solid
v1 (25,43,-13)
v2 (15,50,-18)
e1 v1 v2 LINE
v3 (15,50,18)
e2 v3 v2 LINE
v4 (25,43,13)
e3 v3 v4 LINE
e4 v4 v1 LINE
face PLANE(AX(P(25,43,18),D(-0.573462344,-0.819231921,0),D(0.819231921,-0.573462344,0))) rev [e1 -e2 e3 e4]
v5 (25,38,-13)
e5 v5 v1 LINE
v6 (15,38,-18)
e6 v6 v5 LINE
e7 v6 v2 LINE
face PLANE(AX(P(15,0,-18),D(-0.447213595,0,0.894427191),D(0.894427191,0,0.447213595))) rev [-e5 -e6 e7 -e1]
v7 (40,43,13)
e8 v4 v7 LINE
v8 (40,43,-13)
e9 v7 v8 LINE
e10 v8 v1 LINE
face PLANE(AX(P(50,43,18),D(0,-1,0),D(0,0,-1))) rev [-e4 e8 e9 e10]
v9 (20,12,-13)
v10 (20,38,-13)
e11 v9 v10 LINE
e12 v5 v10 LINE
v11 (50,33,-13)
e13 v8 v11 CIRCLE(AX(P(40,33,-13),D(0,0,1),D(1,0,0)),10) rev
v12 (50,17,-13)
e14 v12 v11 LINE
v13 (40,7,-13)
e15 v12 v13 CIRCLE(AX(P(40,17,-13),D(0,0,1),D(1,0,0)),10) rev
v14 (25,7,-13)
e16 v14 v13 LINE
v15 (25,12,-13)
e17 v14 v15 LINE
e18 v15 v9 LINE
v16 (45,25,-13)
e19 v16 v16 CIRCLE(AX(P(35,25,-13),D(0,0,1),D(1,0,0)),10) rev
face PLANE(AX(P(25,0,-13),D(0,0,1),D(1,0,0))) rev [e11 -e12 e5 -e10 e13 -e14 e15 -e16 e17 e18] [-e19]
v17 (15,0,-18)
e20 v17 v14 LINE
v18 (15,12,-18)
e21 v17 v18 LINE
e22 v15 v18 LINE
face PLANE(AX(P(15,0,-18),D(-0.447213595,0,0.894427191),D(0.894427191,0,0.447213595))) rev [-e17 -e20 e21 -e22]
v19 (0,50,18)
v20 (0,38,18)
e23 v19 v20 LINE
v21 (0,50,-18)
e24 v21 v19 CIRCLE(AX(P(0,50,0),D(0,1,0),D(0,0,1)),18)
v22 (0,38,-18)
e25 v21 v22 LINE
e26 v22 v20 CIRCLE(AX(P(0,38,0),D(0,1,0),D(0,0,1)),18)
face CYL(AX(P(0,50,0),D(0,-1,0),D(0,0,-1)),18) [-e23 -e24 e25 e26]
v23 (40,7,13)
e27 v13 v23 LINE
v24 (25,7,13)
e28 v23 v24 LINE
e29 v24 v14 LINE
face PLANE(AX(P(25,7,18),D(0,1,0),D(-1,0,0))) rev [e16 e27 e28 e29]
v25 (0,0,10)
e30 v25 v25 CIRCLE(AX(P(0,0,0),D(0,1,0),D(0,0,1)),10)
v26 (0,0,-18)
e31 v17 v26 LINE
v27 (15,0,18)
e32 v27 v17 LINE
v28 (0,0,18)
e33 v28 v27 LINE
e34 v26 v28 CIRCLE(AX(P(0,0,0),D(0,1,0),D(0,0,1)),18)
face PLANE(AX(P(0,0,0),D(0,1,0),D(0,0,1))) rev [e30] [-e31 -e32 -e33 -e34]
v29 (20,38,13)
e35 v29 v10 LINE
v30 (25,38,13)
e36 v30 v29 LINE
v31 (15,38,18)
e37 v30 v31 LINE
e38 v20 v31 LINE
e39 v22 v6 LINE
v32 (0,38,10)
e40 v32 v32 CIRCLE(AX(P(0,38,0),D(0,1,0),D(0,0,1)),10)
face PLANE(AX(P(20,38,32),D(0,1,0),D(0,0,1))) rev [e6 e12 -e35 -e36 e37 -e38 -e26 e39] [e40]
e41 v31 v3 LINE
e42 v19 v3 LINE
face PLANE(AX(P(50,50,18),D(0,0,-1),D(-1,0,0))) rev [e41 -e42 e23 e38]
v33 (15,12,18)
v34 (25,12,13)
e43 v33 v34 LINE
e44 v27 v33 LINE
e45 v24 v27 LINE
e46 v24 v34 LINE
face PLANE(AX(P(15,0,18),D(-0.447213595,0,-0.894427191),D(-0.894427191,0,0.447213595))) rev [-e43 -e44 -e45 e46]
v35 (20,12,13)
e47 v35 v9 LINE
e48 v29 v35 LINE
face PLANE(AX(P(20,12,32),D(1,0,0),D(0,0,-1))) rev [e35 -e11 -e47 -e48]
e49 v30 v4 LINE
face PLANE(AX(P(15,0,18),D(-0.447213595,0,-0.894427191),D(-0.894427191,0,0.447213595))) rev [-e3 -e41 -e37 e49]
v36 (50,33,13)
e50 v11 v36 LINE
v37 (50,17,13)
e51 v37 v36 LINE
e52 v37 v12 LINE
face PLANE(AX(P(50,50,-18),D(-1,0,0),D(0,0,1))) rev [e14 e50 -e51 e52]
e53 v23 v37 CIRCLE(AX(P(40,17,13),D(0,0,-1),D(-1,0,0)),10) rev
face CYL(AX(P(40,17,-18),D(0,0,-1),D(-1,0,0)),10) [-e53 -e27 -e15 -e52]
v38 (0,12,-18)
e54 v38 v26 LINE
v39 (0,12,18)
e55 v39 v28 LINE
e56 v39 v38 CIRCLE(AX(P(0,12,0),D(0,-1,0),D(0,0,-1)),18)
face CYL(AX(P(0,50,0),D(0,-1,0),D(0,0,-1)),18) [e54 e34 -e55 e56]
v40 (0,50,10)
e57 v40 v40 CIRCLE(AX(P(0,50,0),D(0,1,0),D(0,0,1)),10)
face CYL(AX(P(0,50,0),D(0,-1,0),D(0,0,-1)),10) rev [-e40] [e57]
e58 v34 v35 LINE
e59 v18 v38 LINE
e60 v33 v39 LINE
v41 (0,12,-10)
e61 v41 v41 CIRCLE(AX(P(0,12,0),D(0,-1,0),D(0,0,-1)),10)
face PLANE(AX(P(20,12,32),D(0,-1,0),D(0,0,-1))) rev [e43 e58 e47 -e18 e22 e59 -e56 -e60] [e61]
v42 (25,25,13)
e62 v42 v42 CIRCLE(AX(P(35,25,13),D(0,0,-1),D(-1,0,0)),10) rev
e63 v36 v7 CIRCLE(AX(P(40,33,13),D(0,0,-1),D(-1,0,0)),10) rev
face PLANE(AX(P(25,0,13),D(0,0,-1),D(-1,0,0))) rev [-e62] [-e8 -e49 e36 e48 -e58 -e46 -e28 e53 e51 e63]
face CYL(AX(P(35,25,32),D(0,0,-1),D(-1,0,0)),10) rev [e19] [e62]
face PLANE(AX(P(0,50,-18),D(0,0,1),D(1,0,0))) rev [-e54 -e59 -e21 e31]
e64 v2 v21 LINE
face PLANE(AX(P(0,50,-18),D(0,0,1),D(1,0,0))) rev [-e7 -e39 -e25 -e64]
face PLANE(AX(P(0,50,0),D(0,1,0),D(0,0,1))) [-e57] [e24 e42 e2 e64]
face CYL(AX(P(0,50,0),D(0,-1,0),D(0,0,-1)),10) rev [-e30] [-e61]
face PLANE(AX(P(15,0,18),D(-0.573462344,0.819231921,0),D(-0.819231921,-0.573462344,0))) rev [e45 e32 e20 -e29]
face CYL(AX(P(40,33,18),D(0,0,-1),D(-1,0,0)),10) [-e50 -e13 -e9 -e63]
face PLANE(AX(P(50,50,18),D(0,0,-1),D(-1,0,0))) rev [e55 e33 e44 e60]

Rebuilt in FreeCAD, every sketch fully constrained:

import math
import FreeCAD as App
import Part
import Sketcher

V = App.Vector
Q = App.Units.Quantity


def edges_at(feature, points):
    """Names of the edges that pass closest to the given points."""
    edges = feature.Shape.Edges
    near = lambda p: min(range(len(edges)), key=lambda i: edges[i].distToShape(Part.Vertex(*p))[0])
    return sorted({f"Edge{near(p) + 1}" for p in points})

doc = App.newDocument("Part")
body = doc.addObject("PartDesign::Body", "Body")

# Sketch on XZ plane
sketch1 = body.newObject("Sketcher::SketchObject", "Sketch")
sketch1.AttachmentSupport = (doc.getObject("XZ_Plane"), [""])
sketch1.MapMode = "FlatFace"
sketch1.addGeometry(Part.LineSegment(V(50, -18, 0), V(0, -18, 0)), False)
sketch1.addGeometry(Part.ArcOfCircle(Part.Circle(V(0, 0, 0), V(0, 0, 1), 18), math.radians(90), math.radians(270)), False)
sketch1.addGeometry(Part.LineSegment(V(0, 18, 0), V(50, 18, 0)), False)
sketch1.addGeometry(Part.LineSegment(V(50, 18, 0), V(50, -18, 0)), False)
sketch1.addGeometry(Part.Circle(V(0, 0, 0), V(0, 0, 1), 10), False)
sketch1.addConstraint(Sketcher.Constraint("Tangent", 0, 2, 1, 2))
sketch1.addConstraint(Sketcher.Constraint("Tangent", 1, 1, 2, 1))
sketch1.addConstraint(Sketcher.Constraint("Coincident", 2, 2, 3, 1))
sketch1.addConstraint(Sketcher.Constraint("Coincident", 3, 2, 0, 1))
sketch1.addConstraint(Sketcher.Constraint("Horizontal", 0))
sketch1.addConstraint(Sketcher.Constraint("Horizontal", 2))
sketch1.addConstraint(Sketcher.Constraint("Vertical", 3))
sketch1.addConstraint(Sketcher.Constraint("Coincident", 1, 3, -1, 1))
sketch1.addConstraint(Sketcher.Constraint("Coincident", 4, 3, -1, 1))
sketch1.addConstraint(Sketcher.Constraint("Diameter", 4, Q("20 mm")))
sketch1.addConstraint(Sketcher.Constraint("Radius", 1, Q("18 mm")))
sketch1.addConstraint(Sketcher.Constraint("DistanceX", 0, 2, 0, 1, Q("50 mm")))
pad1 = body.newObject("PartDesign::Pad", "Pad")
pad1.Profile = sketch1
pad1.Length = 50
pad1.Reversed = True

# Sketch on XY plane
sketch2 = body.newObject("Sketcher::SketchObject", "Sketch001")
sketch2.AttachmentSupport = (doc.getObject("XY_Plane"), [""])
sketch2.MapMode = "FlatFace"
sketch2.AttachmentOffset = App.Placement(V(0, 0, -18), App.Rotation())
sketch2.addGeometry(Part.LineSegment(V(20, 38, 0), V(20, 12, 0)), False)
sketch2.addGeometry(Part.LineSegment(V(20, 12, 0), V(-24, 12, 0)), False)
sketch2.addGeometry(Part.LineSegment(V(-24, 12, 0), V(-24, 38, 0)), False)
sketch2.addGeometry(Part.LineSegment(V(-24, 38, 0), V(20, 38, 0)), False)
sketch2.addConstraint(Sketcher.Constraint("Coincident", 0, 2, 1, 1))
sketch2.addConstraint(Sketcher.Constraint("Coincident", 1, 2, 2, 1))
sketch2.addConstraint(Sketcher.Constraint("Coincident", 2, 2, 3, 1))
sketch2.addConstraint(Sketcher.Constraint("Coincident", 3, 2, 0, 1))
sketch2.addConstraint(Sketcher.Constraint("Vertical", 0))
sketch2.addConstraint(Sketcher.Constraint("Horizontal", 1))
sketch2.addConstraint(Sketcher.Constraint("Vertical", 2))
sketch2.addConstraint(Sketcher.Constraint("Horizontal", 3))
sketch2.addConstraint(Sketcher.Constraint("DistanceY", 0, 2, 0, 1, Q("26 mm")))
sketch2.addConstraint(Sketcher.Constraint("DistanceX", -1, 1, 0, 2, Q("20 mm")))
sketch2.addConstraint(Sketcher.Constraint("DistanceY", -1, 1, 0, 2, Q("12 mm")))
sketch2.addConstraint(Sketcher.Constraint("DistanceX", 1, 2, 1, 1, Q("44.116747 mm")))
pocket1 = body.newObject("PartDesign::Pocket", "Pocket")
pocket1.Profile = sketch2
pocket1.Length = 50
pocket1.Reversed = True

# Sketch on XY plane
sketch3 = body.newObject("Sketcher::SketchObject", "Sketch002")
sketch3.AttachmentSupport = (doc.getObject("XY_Plane"), [""])
sketch3.MapMode = "FlatFace"
sketch3.AttachmentOffset = App.Placement(V(0, 0, -18), App.Rotation())
sketch3.addGeometry(Part.Circle(V(35, 25, 0), V(0, 0, 1), 10), False)
sketch3.addConstraint(Sketcher.Constraint("Diameter", 0, Q("20 mm")))
sketch3.addConstraint(Sketcher.Constraint("DistanceX", -1, 1, 0, 3, Q("35 mm")))
sketch3.addConstraint(Sketcher.Constraint("DistanceY", -1, 1, 0, 3, Q("25 mm")))
pocket2 = body.newObject("PartDesign::Pocket", "Pocket001")
pocket2.Profile = sketch3
pocket2.Length = 50
pocket2.Reversed = True

# Sketch on XY plane
sketch4 = body.newObject("Sketcher::SketchObject", "Sketch003")
sketch4.AttachmentSupport = (doc.getObject("XY_Plane"), [""])
sketch4.MapMode = "FlatFace"
sketch4.AttachmentOffset = App.Placement(V(0, 0, -18), App.Rotation())
sketch4.addGeometry(Part.LineSegment(V(15, 0, 0), V(25, 7, 0)), False)
sketch4.addGeometry(Part.LineSegment(V(25, 7, 0), V(50, 7, 0)), False)
sketch4.addGeometry(Part.LineSegment(V(50, 7, 0), V(50, 0, 0)), False)
sketch4.addGeometry(Part.LineSegment(V(50, 0, 0), V(15, 0, 0)), False)
sketch4.addGeometry(Part.LineSegment(V(50, 50, 0), V(50, 43, 0)), False)
sketch4.addGeometry(Part.LineSegment(V(50, 43, 0), V(25, 43, 0)), False)
sketch4.addGeometry(Part.LineSegment(V(25, 43, 0), V(15, 50, 0)), False)
sketch4.addGeometry(Part.LineSegment(V(15, 50, 0), V(50, 50, 0)), False)
sketch4.addConstraint(Sketcher.Constraint("Coincident", 0, 2, 1, 1))
sketch4.addConstraint(Sketcher.Constraint("Coincident", 1, 2, 2, 1))
sketch4.addConstraint(Sketcher.Constraint("Coincident", 2, 2, 3, 1))
sketch4.addConstraint(Sketcher.Constraint("Coincident", 3, 2, 0, 1))
sketch4.addConstraint(Sketcher.Constraint("Coincident", 4, 2, 5, 1))
sketch4.addConstraint(Sketcher.Constraint("Coincident", 5, 2, 6, 1))
sketch4.addConstraint(Sketcher.Constraint("Coincident", 6, 2, 7, 1))
sketch4.addConstraint(Sketcher.Constraint("Coincident", 7, 2, 4, 1))
sketch4.addConstraint(Sketcher.Constraint("Horizontal", 1))
sketch4.addConstraint(Sketcher.Constraint("Vertical", 2))
sketch4.addConstraint(Sketcher.Constraint("Horizontal", 3))
sketch4.addConstraint(Sketcher.Constraint("Vertical", 4))
sketch4.addConstraint(Sketcher.Constraint("Horizontal", 5))
sketch4.addConstraint(Sketcher.Constraint("Horizontal", 7))
sketch4.addConstraint(Sketcher.Constraint("PointOnObject", 2, 2, -1))
sketch4.addConstraint(Sketcher.Constraint("Vertical", 2, 2, 4, 2))
sketch4.addConstraint(Sketcher.Constraint("Vertical", 0, 2, 5, 2))
sketch4.addConstraint(Sketcher.Constraint("Vertical", 3, 2, 6, 2))
sketch4.addConstraint(Sketcher.Constraint("Equal", 2, 4))
sketch4.addConstraint(Sketcher.Constraint("DistanceX", 1, 1, 1, 2, Q("25 mm")))
sketch4.addConstraint(Sketcher.Constraint("DistanceX", 3, 2, 3, 1, Q("35 mm")))
sketch4.addConstraint(Sketcher.Constraint("DistanceY", 2, 2, 2, 1, Q("7 mm")))
sketch4.addConstraint(Sketcher.Constraint("DistanceX", -1, 1, 0, 2, Q("25 mm")))
sketch4.addConstraint(Sketcher.Constraint("DistanceY", -1, 1, 4, 2, Q("43 mm")))
pocket3 = body.newObject("PartDesign::Pocket", "Pocket002")
pocket3.Profile = sketch4
pocket3.Length = 36
pocket3.Reversed = True

# Sketch on XZ plane
sketch5 = body.newObject("Sketcher::SketchObject", "Sketch004")
sketch5.AttachmentSupport = (doc.getObject("XZ_Plane"), [""])
sketch5.MapMode = "FlatFace"
sketch5.AttachmentOffset = App.Placement(V(0, 0, -50), App.Rotation())
sketch5.addGeometry(Part.LineSegment(V(15, -18, 0), V(25, -13, 0)), False)
sketch5.addGeometry(Part.LineSegment(V(25, -13, 0), V(50, -13, 0)), False)
sketch5.addGeometry(Part.LineSegment(V(50, -13, 0), V(50, -18, 0)), False)
sketch5.addGeometry(Part.LineSegment(V(50, -18, 0), V(15, -18, 0)), False)
sketch5.addGeometry(Part.LineSegment(V(25, 13, 0), V(15, 18, 0)), False)
sketch5.addGeometry(Part.LineSegment(V(15, 18, 0), V(50, 18, 0)), False)
sketch5.addGeometry(Part.LineSegment(V(50, 18, 0), V(50, 13, 0)), False)
sketch5.addGeometry(Part.LineSegment(V(50, 13, 0), V(25, 13, 0)), False)
sketch5.addConstraint(Sketcher.Constraint("Coincident", 0, 2, 1, 1))
sketch5.addConstraint(Sketcher.Constraint("Coincident", 1, 2, 2, 1))
sketch5.addConstraint(Sketcher.Constraint("Coincident", 2, 2, 3, 1))
sketch5.addConstraint(Sketcher.Constraint("Coincident", 3, 2, 0, 1))
sketch5.addConstraint(Sketcher.Constraint("Coincident", 4, 2, 5, 1))
sketch5.addConstraint(Sketcher.Constraint("Coincident", 5, 2, 6, 1))
sketch5.addConstraint(Sketcher.Constraint("Coincident", 6, 2, 7, 1))
sketch5.addConstraint(Sketcher.Constraint("Coincident", 7, 2, 4, 1))
sketch5.addConstraint(Sketcher.Constraint("Horizontal", 1))
sketch5.addConstraint(Sketcher.Constraint("Vertical", 2))
sketch5.addConstraint(Sketcher.Constraint("Horizontal", 3))
sketch5.addConstraint(Sketcher.Constraint("Horizontal", 5))
sketch5.addConstraint(Sketcher.Constraint("Vertical", 6))
sketch5.addConstraint(Sketcher.Constraint("Horizontal", 7))
sketch5.addConstraint(Sketcher.Constraint("Symmetric", 3, 2, 4, 2, -1))
sketch5.addConstraint(Sketcher.Constraint("Symmetric", 1, 2, 6, 2, -1))
sketch5.addConstraint(Sketcher.Constraint("Vertical", 0, 2, 7, 2))
sketch5.addConstraint(Sketcher.Constraint("DistanceX", 1, 1, 1, 2, Q("25 mm")))
sketch5.addConstraint(Sketcher.Constraint("DistanceX", 3, 2, 3, 1, Q("35 mm")))
sketch5.addConstraint(Sketcher.Constraint("DistanceY", 2, 2, 2, 1, Q("5 mm")))
sketch5.addConstraint(Sketcher.Constraint("DistanceX", -1, 1, 0, 2, Q("25 mm")))
sketch5.addConstraint(Sketcher.Constraint("DistanceY", 0, 2, -1, 1, Q("13 mm")))
pocket4 = body.newObject("PartDesign::Pocket", "Pocket003")
pocket4.Profile = sketch5
pocket4.Length = 50
pocket4.Reversed = True
doc.recompute()

fillet = body.newObject("PartDesign::Fillet", "Fillet")
fillet.Base = (pocket4, edges_at(pocket4, [(50, 7, 0), (50, 43, 0)]))
fillet.Radius = 10

# Sketch on YZ plane
sketch6 = body.newObject("Sketcher::SketchObject", "Sketch005")
sketch6.AttachmentSupport = (doc.getObject("YZ_Plane"), [""])
sketch6.MapMode = "FlatFace"
sketch6.AttachmentOffset = App.Placement(V(0, 0, 20), App.Rotation())
sketch6.addGeometry(Part.LineSegment(V(38, -15.5, 0), V(12, -15.5, 0)), False)
sketch6.addGeometry(Part.LineSegment(V(12, -15.5, 0), V(12, -13, 0)), False)
sketch6.addGeometry(Part.LineSegment(V(12, -13, 0), V(38, -13, 0)), False)
sketch6.addGeometry(Part.LineSegment(V(38, -13, 0), V(38, -15.5, 0)), False)
sketch6.addGeometry(Part.LineSegment(V(38, 13, 0), V(12, 13, 0)), False)
sketch6.addGeometry(Part.LineSegment(V(12, 13, 0), V(12, 15.5, 0)), False)
sketch6.addGeometry(Part.LineSegment(V(12, 15.5, 0), V(38, 15.5, 0)), False)
sketch6.addGeometry(Part.LineSegment(V(38, 15.5, 0), V(38, 13, 0)), False)
sketch6.addConstraint(Sketcher.Constraint("Coincident", 0, 2, 1, 1))
sketch6.addConstraint(Sketcher.Constraint("Coincident", 1, 2, 2, 1))
sketch6.addConstraint(Sketcher.Constraint("Coincident", 2, 2, 3, 1))
sketch6.addConstraint(Sketcher.Constraint("Coincident", 3, 2, 0, 1))
sketch6.addConstraint(Sketcher.Constraint("Coincident", 4, 2, 5, 1))
sketch6.addConstraint(Sketcher.Constraint("Coincident", 5, 2, 6, 1))
sketch6.addConstraint(Sketcher.Constraint("Coincident", 6, 2, 7, 1))
sketch6.addConstraint(Sketcher.Constraint("Coincident", 7, 2, 4, 1))
sketch6.addConstraint(Sketcher.Constraint("Horizontal", 0))
sketch6.addConstraint(Sketcher.Constraint("Vertical", 1))
sketch6.addConstraint(Sketcher.Constraint("Horizontal", 2))
sketch6.addConstraint(Sketcher.Constraint("Vertical", 3))
sketch6.addConstraint(Sketcher.Constraint("Horizontal", 4))
sketch6.addConstraint(Sketcher.Constraint("Vertical", 5))
sketch6.addConstraint(Sketcher.Constraint("Horizontal", 6))
sketch6.addConstraint(Sketcher.Constraint("Vertical", 7))
sketch6.addConstraint(Sketcher.Constraint("Symmetric", 1, 2, 4, 2, -1))
sketch6.addConstraint(Sketcher.Constraint("Symmetric", 3, 2, 6, 2, -1))
sketch6.addConstraint(Sketcher.Constraint("DistanceX", 0, 2, 0, 1, Q("26 mm")))
sketch6.addConstraint(Sketcher.Constraint("DistanceY", 1, 1, 1, 2, Q("2.5 mm")))
sketch6.addConstraint(Sketcher.Constraint("DistanceX", -1, 1, 0, 2, Q("12 mm")))
sketch6.addConstraint(Sketcher.Constraint("DistanceY", 1, 2, -1, 1, Q("13 mm")))
pocket5 = body.newObject("PartDesign::Pocket", "Pocket004")
pocket5.Profile = sketch6
pocket5.Length = 50
pocket5.Reversed = True

doc.recompute()
